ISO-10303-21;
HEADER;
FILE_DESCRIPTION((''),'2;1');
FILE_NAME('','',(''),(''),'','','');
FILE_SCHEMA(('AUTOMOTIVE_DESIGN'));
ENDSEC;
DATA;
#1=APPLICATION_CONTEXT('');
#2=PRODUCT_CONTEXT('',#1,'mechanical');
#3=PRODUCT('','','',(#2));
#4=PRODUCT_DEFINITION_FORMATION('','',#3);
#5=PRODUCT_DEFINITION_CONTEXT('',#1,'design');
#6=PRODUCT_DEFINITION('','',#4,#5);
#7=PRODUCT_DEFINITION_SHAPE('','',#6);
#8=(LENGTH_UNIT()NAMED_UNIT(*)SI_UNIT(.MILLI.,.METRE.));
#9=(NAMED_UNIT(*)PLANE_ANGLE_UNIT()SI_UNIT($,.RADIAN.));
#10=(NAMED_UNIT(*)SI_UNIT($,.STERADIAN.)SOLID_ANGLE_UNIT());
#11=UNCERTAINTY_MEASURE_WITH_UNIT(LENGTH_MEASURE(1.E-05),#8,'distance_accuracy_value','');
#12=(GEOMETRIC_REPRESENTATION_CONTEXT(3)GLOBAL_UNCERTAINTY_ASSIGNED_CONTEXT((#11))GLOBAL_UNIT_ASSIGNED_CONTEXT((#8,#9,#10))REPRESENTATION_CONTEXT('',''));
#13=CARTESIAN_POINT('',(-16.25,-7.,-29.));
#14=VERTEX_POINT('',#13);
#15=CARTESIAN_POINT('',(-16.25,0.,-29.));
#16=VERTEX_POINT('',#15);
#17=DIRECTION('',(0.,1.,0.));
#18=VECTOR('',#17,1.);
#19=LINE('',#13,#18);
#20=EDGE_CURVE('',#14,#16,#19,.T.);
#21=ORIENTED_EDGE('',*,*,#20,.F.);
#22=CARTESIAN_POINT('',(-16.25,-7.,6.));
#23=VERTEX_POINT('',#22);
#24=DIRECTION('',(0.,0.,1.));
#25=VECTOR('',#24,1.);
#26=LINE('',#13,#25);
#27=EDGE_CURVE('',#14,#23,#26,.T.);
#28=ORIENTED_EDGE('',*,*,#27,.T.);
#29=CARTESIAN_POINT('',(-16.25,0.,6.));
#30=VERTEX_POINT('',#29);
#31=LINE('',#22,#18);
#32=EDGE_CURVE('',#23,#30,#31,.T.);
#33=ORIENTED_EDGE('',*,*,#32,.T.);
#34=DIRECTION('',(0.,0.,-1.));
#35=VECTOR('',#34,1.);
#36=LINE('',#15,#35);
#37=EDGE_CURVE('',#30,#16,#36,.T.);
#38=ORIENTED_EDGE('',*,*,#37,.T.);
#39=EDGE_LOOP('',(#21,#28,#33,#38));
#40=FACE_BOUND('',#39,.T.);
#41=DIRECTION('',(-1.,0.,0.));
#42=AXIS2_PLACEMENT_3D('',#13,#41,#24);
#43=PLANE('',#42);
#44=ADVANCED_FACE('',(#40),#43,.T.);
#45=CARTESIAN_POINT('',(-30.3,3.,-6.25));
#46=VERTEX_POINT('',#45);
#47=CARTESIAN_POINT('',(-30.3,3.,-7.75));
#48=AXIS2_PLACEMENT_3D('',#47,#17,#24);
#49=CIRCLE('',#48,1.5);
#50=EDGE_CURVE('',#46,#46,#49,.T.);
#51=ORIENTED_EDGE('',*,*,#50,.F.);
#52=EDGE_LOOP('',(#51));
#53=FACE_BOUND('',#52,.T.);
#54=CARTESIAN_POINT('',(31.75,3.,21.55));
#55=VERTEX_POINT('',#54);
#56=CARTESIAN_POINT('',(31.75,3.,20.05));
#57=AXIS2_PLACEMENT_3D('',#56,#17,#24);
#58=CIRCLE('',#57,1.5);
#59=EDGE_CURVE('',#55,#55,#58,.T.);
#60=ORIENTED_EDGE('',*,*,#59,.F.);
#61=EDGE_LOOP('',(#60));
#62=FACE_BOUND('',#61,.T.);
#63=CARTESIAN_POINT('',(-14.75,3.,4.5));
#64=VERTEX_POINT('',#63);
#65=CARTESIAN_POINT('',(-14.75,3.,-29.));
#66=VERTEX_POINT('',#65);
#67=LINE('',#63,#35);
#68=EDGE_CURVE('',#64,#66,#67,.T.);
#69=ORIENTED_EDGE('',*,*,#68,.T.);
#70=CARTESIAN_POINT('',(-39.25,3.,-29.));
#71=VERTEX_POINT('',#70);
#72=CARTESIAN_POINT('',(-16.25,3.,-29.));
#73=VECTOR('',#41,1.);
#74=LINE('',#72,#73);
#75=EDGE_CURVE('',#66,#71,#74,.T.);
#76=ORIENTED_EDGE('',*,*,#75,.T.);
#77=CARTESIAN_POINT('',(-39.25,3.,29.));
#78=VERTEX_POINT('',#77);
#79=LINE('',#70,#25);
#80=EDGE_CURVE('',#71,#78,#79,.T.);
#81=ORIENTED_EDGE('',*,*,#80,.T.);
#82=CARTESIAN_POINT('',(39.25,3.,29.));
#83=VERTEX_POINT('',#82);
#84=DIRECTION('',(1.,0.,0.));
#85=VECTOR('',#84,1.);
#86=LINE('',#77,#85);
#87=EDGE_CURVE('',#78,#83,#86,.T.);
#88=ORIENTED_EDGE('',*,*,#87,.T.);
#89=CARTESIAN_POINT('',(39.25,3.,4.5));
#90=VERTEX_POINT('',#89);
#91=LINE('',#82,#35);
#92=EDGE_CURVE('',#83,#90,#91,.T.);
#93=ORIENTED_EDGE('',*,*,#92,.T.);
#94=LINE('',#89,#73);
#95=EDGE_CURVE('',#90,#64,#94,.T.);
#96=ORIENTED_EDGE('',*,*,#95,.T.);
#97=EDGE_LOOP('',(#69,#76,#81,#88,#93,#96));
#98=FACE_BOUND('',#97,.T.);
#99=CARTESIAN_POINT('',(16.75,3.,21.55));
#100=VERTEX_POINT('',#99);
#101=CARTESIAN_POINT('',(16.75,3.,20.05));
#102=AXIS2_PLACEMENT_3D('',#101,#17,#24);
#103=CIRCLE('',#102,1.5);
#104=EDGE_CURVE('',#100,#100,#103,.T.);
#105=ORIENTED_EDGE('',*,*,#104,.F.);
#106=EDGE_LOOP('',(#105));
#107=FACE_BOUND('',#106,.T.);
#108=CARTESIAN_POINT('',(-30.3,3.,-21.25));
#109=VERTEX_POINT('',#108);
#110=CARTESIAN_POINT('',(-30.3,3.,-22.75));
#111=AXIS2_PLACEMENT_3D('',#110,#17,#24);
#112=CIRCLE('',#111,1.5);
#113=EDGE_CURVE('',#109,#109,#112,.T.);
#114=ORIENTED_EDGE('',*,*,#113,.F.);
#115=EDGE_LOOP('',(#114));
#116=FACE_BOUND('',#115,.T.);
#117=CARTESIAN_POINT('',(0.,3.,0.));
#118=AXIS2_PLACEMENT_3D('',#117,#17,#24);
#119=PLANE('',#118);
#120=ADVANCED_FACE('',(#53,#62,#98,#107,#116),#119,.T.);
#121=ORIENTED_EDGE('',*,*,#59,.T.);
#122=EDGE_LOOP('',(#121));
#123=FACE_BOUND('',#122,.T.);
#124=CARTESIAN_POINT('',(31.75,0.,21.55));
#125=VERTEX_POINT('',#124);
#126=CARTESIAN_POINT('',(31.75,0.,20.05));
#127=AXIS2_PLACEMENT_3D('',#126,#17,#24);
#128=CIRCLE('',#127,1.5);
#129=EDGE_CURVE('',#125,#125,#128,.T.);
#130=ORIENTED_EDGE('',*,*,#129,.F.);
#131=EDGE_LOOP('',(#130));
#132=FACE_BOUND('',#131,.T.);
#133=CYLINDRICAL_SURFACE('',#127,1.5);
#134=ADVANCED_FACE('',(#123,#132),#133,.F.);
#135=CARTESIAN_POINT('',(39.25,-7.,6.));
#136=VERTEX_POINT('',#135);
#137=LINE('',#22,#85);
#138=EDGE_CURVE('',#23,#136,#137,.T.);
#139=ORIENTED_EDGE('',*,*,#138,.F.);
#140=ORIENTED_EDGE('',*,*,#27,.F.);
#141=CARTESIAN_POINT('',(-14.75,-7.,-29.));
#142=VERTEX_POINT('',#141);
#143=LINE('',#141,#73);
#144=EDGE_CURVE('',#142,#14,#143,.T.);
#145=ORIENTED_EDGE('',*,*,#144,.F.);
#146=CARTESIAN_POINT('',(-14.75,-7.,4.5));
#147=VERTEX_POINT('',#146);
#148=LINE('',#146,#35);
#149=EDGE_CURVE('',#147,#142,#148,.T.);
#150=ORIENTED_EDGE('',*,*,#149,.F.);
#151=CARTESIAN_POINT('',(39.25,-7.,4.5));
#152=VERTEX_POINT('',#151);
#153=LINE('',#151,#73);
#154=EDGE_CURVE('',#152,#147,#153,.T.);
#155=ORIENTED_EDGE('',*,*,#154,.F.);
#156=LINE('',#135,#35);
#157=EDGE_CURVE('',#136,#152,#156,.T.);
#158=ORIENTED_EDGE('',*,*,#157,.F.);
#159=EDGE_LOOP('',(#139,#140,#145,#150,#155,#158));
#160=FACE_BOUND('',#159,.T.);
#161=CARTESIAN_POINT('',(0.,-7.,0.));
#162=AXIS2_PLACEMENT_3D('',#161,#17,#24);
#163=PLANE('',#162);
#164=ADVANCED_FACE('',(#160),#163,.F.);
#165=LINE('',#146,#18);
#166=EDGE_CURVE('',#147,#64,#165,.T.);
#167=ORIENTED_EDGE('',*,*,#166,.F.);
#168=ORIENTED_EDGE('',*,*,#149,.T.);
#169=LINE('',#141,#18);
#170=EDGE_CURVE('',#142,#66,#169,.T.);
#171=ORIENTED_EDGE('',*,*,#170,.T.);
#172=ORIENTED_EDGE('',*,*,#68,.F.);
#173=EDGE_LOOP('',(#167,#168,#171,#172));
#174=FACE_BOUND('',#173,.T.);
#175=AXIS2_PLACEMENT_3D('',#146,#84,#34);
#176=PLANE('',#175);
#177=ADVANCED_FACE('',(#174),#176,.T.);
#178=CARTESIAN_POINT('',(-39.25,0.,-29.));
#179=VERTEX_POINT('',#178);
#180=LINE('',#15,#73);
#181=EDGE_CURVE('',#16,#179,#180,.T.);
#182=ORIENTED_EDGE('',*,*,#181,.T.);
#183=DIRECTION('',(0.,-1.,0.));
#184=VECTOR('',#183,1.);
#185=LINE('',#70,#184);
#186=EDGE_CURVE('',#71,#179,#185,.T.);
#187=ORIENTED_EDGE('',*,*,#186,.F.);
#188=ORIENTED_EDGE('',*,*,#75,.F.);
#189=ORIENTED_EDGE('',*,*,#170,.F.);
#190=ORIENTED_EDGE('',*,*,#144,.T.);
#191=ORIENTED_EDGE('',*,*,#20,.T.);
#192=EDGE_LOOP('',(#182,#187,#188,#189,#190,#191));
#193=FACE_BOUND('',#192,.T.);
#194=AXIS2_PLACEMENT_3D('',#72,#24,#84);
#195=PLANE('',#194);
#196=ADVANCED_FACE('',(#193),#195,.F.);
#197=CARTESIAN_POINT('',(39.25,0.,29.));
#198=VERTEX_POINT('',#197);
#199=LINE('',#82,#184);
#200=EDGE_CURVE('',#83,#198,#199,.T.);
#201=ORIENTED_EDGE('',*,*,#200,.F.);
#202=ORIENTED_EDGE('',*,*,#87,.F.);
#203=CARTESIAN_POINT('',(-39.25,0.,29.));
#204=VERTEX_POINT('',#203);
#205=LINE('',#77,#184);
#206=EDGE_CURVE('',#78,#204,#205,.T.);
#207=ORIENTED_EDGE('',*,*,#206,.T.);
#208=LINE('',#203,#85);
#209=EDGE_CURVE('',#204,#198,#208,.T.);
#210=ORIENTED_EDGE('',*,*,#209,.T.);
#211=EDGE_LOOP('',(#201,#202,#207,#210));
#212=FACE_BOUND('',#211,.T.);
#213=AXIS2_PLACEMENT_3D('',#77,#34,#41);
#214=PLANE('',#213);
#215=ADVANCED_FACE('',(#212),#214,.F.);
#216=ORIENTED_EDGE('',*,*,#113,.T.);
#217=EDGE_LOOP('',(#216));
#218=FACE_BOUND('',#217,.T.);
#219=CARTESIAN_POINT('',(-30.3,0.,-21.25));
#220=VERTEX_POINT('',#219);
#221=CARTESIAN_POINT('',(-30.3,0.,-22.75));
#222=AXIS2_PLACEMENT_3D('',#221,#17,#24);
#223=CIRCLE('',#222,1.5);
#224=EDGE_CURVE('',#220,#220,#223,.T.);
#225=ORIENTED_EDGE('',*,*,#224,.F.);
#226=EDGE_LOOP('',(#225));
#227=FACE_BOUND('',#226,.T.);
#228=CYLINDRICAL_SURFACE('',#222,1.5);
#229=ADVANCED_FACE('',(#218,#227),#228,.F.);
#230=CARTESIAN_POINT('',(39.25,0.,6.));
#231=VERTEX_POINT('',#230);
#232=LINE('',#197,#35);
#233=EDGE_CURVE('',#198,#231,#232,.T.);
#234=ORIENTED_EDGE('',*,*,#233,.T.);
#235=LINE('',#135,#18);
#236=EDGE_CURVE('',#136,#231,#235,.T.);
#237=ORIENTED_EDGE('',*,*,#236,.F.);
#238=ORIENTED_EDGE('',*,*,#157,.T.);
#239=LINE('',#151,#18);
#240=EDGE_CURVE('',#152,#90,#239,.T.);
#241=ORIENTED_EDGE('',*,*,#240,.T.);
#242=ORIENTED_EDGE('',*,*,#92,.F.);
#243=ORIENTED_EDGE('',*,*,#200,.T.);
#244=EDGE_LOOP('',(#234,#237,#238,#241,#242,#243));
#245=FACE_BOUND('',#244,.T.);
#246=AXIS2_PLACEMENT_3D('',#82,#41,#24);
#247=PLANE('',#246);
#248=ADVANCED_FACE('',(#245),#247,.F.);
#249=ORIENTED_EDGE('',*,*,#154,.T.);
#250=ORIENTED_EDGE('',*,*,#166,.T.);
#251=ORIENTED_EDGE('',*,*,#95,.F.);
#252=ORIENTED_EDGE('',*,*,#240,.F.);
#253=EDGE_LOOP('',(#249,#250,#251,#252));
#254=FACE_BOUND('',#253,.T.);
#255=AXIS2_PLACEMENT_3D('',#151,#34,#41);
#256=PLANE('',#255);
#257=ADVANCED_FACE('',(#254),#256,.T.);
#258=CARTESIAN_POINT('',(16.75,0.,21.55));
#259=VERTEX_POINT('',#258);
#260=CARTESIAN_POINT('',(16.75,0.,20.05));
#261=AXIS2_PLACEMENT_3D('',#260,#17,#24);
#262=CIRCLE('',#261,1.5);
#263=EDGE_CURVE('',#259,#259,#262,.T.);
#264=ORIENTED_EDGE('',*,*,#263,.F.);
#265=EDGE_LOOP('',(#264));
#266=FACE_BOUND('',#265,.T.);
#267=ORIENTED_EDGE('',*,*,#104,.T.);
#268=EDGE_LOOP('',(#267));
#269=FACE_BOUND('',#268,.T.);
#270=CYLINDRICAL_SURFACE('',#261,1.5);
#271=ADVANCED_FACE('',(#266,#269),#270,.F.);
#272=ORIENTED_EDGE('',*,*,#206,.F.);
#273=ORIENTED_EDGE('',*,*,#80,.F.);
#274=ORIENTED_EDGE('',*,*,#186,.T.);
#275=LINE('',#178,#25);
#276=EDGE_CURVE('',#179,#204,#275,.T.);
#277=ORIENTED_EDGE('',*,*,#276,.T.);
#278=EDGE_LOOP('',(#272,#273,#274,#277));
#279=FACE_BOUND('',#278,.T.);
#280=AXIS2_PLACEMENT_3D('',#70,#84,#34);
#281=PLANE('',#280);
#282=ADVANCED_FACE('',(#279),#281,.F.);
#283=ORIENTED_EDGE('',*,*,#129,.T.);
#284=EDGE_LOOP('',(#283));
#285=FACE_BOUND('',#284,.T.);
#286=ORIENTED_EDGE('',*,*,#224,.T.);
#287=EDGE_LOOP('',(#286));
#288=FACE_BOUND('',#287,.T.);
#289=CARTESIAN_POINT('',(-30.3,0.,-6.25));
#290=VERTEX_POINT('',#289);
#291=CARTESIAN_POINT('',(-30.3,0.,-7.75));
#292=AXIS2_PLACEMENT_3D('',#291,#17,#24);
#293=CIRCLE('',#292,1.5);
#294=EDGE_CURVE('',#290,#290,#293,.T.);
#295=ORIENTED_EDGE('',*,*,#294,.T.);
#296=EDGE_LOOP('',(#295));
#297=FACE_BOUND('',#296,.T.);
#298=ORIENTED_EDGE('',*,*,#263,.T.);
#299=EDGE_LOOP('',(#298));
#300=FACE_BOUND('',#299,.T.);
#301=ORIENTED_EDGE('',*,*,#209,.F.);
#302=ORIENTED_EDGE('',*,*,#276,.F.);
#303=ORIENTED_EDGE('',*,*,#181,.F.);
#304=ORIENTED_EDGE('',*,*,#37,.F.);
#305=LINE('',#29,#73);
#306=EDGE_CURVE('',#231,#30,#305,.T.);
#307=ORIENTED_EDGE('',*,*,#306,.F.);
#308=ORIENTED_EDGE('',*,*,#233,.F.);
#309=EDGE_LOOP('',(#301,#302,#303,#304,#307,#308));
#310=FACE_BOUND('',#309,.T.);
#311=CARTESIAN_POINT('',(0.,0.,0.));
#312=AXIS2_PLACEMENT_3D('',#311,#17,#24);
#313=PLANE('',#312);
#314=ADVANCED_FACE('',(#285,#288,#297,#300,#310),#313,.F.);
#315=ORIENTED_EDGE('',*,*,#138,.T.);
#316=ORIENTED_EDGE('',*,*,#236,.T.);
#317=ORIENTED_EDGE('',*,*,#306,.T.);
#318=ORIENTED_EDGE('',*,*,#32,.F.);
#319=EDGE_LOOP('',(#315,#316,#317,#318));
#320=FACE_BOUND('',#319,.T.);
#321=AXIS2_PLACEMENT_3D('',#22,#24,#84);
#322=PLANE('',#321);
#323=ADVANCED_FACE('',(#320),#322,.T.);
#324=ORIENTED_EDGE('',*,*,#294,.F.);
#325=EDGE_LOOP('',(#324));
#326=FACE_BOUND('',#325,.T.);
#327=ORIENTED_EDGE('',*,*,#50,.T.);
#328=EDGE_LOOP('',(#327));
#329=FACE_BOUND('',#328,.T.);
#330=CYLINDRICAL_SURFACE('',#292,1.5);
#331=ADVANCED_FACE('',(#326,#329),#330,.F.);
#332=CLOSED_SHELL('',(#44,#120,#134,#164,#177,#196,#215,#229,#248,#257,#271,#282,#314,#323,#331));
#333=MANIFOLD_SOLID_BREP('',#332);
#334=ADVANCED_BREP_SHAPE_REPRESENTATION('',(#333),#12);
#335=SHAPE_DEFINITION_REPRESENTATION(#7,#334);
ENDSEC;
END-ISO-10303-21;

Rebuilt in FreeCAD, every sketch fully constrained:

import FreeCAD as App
import Part
import Sketcher
Q = App.Units.Quantity

doc = App.newDocument("Part")
params = doc.addObject("Spreadsheet::Sheet", "Params")
for row, (alias, value) in enumerate([
    ("sketch1_width", "23 mm"),
    ("sketch1_height", "35 mm"),
    ("sketch1_width2", "78.5 mm"),
    ("pad1_length", "3 mm"),
    ("sketch2_diameter", "3 mm"),
    ("sketch3_width", "54 mm"),
    ("sketch3_height", "35 mm"),
    ("sketch3_width2", "55.5 mm"),
    ("pad2_length", "10 mm"),
], start=1):
    params.set(f"A{row}", alias)
    params.set(f"B{row}", "=" + value)
    params.setAlias(f"B{row}", alias)

body = doc.addObject("PartDesign::Body", "Body")

# Sketch on XZ plane
sketch1 = body.newObject("Sketcher::SketchObject", "Sketch")
sketch1.AttachmentSupport = (doc.getObject("XZ_Plane"), [""])
sketch1.MapMode = "FlatFace"
sketch1.addGeometry([
    Part.LineSegment(App.Vector(-16, 6, 0), App.Vector(-16, -29, 0)),  # 0
    Part.LineSegment(App.Vector(-16, -29, 0), App.Vector(-39, -29, 0)),  # 1
    Part.LineSegment(App.Vector(-39, -29, 0), App.Vector(-39, 29, 0)),  # 2
    Part.LineSegment(App.Vector(-39, 29, 0), App.Vector(39, 29, 0)),  # 3
    Part.LineSegment(App.Vector(39, 29, 0), App.Vector(39, 6, 0)),  # 4
    Part.LineSegment(App.Vector(39, 6, 0), App.Vector(-16, 6, 0)),  # 5
], False)
sketch1.addConstraint([
    Sketcher.Constraint("Coincident", 0, 2, 1, 1),
    Sketcher.Constraint("Coincident", 1, 2, 2, 1),
    Sketcher.Constraint("Coincident", 2, 2, 3, 1),
    Sketcher.Constraint("Coincident", 3, 2, 4, 1),
    Sketcher.Constraint("Coincident", 4, 2, 5, 1),
    Sketcher.Constraint("Coincident", 5, 2, 0, 1),
    Sketcher.Constraint("Vertical", 0),
    Sketcher.Constraint("Horizontal", 1),
    Sketcher.Constraint("Vertical", 2),
    Sketcher.Constraint("Horizontal", 3),
    Sketcher.Constraint("Vertical", 4),
    Sketcher.Constraint("Horizontal", 5),
    Sketcher.Constraint("Symmetric", 1, 2, 3, 2, -1, 1),
    Sketcher.Constraint("Equal", 1, 4),
    Sketcher.Constraint("DistanceX", 1, 2, 1, 1, Q("23 mm")),
    Sketcher.Constraint("DistanceY", 0, 2, 0, 1, Q("35 mm")),
    Sketcher.Constraint("DistanceX", 3, 1, 3, 2, Q("78.5 mm")),
])
sketch1.setExpression("Constraints[14]", "Params.sketch1_width")
sketch1.setExpression("Constraints[15]", "Params.sketch1_height")
sketch1.setExpression("Constraints[16]", "Params.sketch1_width2")
pad1 = body.newObject("PartDesign::Pad", "Pad")
pad1.Profile = sketch1
pad1.setExpression("Length", "Params.pad1_length")
pad1.Reversed = True

# Sketch on XZ plane
sketch2 = body.newObject("Sketcher::SketchObject", "Sketch001")
sketch2.AttachmentSupport = (doc.getObject("XZ_Plane"), [""])
sketch2.MapMode = "FlatFace"
sketch2.AttachmentOffset = App.Placement(App.Vector(0, 0, -3), App.Rotation())
sketch2.addGeometry([
    Part.Circle(App.Vector(31.8, 20.1, 0), App.Vector(0, 0, 1), 1.5),
    Part.Circle(App.Vector(16.8, 20.1, 0), App.Vector(0, 0, 1), 1.5),
    Part.Circle(App.Vector(-30.3, -22.8, 0), App.Vector(0, 0, 1), 1.5),
    Part.Circle(App.Vector(-30.3, -7.8, 0), App.Vector(0, 0, 1), 1.5),
], False)
sketch2.addConstraint([
    Sketcher.Constraint("Equal", 0, 1),
    Sketcher.Constraint("Equal", 1, 2),
    Sketcher.Constraint("Equal", 2, 3),
    Sketcher.Constraint("Horizontal", 0, 3, 1, 3),
    Sketcher.Constraint("Vertical", 2, 3, 3, 3),
    Sketcher.Constraint("Diameter", 0, Q("3 mm")),
    Sketcher.Constraint("DistanceX", 1, 3, 0, 3, Q("15 mm")),
    Sketcher.Constraint("DistanceY", 2, 3, 3, 3, Q("15 mm")),
    Sketcher.Constraint("DistanceX", 2, 3, -1, 1, Q("30.3 mm")),
    Sketcher.Constraint("DistanceY", 2, 3, 1, 3, Q("42.8 mm")),
    Sketcher.Constraint("DistanceX", -1, 1, 0, 3, Q("31.75 mm")),
    Sketcher.Constraint("DistanceY", -1, 1, 0, 3, Q("20.05 mm")),
])
sketch2.setExpression("Constraints[5]", "Params.sketch2_diameter")
pocket1 = body.newObject("PartDesign::Pocket", "Pocket")
pocket1.Profile = sketch2
pocket1.Type = "ThroughAll"
pocket1.Reversed = True

# Sketch on XZ plane
sketch3 = body.newObject("Sketcher::SketchObject", "Sketch002")
sketch3.AttachmentSupport = (doc.getObject("XZ_Plane"), [""])
sketch3.MapMode = "FlatFace"
sketch3.AttachmentOffset = App.Placement(App.Vector(0, 0, -3), App.Rotation())
sketch3.addGeometry([
    Part.LineSegment(App.Vector(-16.2, -29, 0), App.Vector(-16.2, 6, 0)),  # 0
    Part.LineSegment(App.Vector(-16.2, 6, 0), App.Vector(39.2, 6, 0)),  # 1
    Part.LineSegment(App.Vector(39.2, 6, 0), App.Vector(39.2, 4.5, 0)),  # 2
    Part.LineSegment(App.Vector(39.2, 4.5, 0), App.Vector(-14.8, 4.5, 0)),  # 3
    Part.LineSegment(App.Vector(-14.8, 4.5, 0), App.Vector(-14.8, -29, 0)),  # 4
    Part.LineSegment(App.Vector(-14.8, -29, 0), App.Vector(-16.2, -29, 0)),  # 5
], False)
sketch3.addConstraint([
    Sketcher.Constraint("Coincident", 0, 2, 1, 1),
    Sketcher.Constraint("Coincident", 1, 2, 2, 1),
    Sketcher.Constraint("Coincident", 2, 2, 3, 1),
    Sketcher.Constraint("Coincident", 3, 2, 4, 1),
    Sketcher.Constraint("Coincident", 4, 2, 5, 1),
    Sketcher.Constraint("Coincident", 5, 2, 0, 1),
    Sketcher.Constraint("Vertical", 0),
    Sketcher.Constraint("Horizontal", 1),
    Sketcher.Constraint("Vertical", 2),
    Sketcher.Constraint("Horizontal", 3),
    Sketcher.Constraint("Vertical", 4),
    Sketcher.Constraint("Horizontal", 5),
    Sketcher.Constraint("Equal", 5, 2),
    Sketcher.Constraint("DistanceX", 3, 2, 3, 1, Q("54 mm")),
    Sketcher.Constraint("DistanceY", 0, 1, 0, 2, Q("35 mm")),
    Sketcher.Constraint("DistanceX", 1, 1, 1, 2, Q("55.5 mm")),
    Sketcher.Constraint("DistanceY", -1, 1, 0, 2, Q("6 mm")),
    Sketcher.Constraint("DistanceX", 0, 2, -1, 1, Q("16.25 mm")),
])
sketch3.setExpression("Constraints[13]", "Params.sketch3_width")
sketch3.setExpression("Constraints[14]", "Params.sketch3_height")
sketch3.setExpression("Constraints[15]", "Params.sketch3_width2")
pad2 = body.newObject("PartDesign::Pad", "Pad001")
pad2.Profile = sketch3
pad2.setExpression("Length", "Params.pad2_length")

doc.recompute()
